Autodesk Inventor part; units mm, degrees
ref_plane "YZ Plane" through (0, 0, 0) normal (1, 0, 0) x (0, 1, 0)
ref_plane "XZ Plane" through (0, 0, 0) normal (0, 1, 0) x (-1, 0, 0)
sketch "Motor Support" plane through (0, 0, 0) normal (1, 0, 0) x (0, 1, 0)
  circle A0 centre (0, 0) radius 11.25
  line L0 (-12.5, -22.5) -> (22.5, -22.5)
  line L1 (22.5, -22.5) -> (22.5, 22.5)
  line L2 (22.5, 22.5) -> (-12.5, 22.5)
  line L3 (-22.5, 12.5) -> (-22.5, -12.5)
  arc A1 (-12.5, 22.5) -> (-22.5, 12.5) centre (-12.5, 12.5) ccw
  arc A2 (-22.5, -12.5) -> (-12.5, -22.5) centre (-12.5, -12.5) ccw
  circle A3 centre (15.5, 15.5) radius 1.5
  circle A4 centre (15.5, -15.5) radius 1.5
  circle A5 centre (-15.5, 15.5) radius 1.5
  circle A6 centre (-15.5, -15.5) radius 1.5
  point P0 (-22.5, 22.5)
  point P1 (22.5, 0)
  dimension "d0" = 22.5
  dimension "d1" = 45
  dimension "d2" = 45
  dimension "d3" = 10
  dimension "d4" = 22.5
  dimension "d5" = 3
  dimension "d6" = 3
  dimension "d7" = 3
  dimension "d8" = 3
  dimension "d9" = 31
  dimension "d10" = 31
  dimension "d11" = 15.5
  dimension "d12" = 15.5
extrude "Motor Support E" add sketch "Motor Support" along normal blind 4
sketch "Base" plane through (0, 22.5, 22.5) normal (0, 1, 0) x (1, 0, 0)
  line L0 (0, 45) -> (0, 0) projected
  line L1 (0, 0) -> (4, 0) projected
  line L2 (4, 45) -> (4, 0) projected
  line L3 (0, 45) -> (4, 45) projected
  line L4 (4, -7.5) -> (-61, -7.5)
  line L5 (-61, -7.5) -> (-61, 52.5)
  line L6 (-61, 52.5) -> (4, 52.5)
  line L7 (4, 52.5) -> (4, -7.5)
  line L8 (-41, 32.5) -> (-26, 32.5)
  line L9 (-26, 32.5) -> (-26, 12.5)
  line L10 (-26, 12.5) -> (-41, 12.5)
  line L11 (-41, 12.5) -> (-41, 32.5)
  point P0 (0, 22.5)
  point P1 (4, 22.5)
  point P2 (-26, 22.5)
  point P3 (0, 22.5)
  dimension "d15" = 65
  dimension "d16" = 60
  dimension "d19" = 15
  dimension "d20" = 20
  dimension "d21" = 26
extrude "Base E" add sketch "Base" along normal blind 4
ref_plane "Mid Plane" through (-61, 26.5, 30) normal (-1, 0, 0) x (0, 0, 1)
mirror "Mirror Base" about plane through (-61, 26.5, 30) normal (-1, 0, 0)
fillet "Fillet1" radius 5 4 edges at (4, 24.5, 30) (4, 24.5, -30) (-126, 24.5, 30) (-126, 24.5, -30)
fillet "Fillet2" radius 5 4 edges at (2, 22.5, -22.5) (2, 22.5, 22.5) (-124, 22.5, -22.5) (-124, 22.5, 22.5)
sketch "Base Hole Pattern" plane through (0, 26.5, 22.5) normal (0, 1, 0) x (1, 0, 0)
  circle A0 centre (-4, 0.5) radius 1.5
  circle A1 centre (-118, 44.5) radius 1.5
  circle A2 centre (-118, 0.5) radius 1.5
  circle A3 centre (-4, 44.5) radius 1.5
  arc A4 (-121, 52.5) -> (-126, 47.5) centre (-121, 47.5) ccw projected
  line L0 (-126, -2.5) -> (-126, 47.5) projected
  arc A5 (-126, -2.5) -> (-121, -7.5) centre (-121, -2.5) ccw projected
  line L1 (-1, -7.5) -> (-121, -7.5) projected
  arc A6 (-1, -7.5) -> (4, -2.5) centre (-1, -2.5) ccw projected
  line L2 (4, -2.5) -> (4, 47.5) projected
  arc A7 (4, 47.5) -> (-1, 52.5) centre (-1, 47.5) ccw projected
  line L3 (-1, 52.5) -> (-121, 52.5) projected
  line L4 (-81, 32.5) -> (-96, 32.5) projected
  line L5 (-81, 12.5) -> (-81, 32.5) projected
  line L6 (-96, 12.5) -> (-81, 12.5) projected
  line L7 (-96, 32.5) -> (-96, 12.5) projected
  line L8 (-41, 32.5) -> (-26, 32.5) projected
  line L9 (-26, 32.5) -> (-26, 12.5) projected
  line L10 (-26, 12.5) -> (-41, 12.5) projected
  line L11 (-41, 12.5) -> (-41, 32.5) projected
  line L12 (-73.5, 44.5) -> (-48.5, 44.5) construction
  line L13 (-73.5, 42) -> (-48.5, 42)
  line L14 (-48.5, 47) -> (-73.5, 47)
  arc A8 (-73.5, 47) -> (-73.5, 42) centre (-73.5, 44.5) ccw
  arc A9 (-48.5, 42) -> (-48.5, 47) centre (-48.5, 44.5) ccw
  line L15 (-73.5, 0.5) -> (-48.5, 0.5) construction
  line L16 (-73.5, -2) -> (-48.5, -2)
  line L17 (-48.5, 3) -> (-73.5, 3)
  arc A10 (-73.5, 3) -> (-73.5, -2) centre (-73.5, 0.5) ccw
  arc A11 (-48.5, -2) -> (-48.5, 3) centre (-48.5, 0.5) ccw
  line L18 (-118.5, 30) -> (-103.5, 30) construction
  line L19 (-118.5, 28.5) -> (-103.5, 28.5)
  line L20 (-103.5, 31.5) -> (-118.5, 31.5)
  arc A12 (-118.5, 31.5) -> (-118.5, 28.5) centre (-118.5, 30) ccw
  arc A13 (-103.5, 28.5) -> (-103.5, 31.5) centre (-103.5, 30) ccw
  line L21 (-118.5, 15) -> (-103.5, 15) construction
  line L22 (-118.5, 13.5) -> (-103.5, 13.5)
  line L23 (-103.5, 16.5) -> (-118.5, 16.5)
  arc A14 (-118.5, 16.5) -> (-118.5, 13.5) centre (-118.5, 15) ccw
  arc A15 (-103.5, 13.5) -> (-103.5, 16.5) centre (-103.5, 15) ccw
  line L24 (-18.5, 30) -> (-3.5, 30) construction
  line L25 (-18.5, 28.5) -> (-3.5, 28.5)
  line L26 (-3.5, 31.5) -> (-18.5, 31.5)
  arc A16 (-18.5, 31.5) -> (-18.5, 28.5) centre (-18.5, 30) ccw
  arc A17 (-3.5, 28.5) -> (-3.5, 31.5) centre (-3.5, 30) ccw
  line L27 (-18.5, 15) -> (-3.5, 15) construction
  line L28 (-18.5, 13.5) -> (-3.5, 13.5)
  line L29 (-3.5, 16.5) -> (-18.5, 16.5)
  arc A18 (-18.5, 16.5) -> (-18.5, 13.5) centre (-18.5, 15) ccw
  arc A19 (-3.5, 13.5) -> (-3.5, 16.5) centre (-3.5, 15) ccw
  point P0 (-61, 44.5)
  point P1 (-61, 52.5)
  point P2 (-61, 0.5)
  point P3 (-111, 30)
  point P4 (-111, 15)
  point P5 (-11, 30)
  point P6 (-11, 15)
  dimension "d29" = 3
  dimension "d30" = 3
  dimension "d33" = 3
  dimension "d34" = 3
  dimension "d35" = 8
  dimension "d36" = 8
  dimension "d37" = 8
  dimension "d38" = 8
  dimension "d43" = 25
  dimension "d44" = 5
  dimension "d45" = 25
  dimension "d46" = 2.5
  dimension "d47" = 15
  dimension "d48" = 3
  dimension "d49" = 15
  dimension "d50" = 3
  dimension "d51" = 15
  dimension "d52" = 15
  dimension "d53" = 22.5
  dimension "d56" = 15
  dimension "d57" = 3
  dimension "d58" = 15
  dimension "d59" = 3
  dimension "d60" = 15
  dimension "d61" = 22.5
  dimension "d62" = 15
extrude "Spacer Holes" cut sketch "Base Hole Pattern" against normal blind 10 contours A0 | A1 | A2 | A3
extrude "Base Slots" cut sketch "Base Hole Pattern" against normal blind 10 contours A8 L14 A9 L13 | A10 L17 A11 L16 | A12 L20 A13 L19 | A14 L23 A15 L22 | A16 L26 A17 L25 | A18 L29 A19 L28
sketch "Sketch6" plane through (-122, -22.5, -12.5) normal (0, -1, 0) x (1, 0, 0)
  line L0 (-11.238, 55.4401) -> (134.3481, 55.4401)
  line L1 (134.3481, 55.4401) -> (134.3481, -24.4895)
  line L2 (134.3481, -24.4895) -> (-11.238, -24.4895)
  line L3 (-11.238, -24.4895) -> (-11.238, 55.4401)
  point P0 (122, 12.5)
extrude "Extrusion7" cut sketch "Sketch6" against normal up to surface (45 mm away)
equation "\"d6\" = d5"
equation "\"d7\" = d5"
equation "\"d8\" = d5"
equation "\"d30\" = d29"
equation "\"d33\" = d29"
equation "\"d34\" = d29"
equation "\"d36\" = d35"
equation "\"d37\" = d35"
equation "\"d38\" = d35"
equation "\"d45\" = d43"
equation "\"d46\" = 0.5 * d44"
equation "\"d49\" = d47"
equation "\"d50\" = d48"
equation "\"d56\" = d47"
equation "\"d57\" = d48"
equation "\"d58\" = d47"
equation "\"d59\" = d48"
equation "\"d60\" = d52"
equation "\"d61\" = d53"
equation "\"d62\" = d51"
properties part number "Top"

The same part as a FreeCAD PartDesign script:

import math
import FreeCAD as App
import Part
import Sketcher


def edges_at(feature, points):
    """Names of the edges that pass closest to the given points."""
    edges = feature.Shape.Edges
    near = lambda p: min(range(len(edges)), key=lambda i: edges[i].distToShape(Part.Vertex(*p))[0])
    return sorted({f"Edge{near(p) + 1}" for p in points})

doc = App.newDocument("Part")
body = doc.addObject("PartDesign::Body", "Body")

sketch1 = body.newObject("Sketcher::SketchObject", "Sketch")
sketch1.AttachmentSupport = (doc.getObject("YZ_Plane"), [""])
sketch1.MapMode = "FlatFace"
sketch1.addGeometry([
    Part.ArcOfCircle(Part.Circle(App.Vector(-12.5, -12.5, 0), App.Vector(0, 0, 1), 10), math.radians(180), math.radians(270)),
    Part.LineSegment(App.Vector(-12.5, -22.5, 0), App.Vector(22.5, -22.5, 0)),
    Part.LineSegment(App.Vector(22.5, -22.5, 0), App.Vector(22.5, 22.5, 0)),
    Part.LineSegment(App.Vector(22.5, 22.5, 0), App.Vector(-12.5, 22.5, 0)),
    Part.ArcOfCircle(Part.Circle(App.Vector(-12.5, 12.5, 0), App.Vector(0, 0, 1), 10), math.radians(90), math.radians(180)),
    Part.LineSegment(App.Vector(-22.5, 12.5, 0), App.Vector(-22.5, -12.5, 0)),
    Part.Circle(App.Vector(-15.5, -15.5, 0), App.Vector(0, 0, 1), 1.5),
    Part.Circle(App.Vector(15.5, -15.5, 0), App.Vector(0, 0, 1), 1.5),
    Part.Circle(App.Vector(-15.5, 15.5, 0), App.Vector(0, 0, 1), 1.5),
    Part.Circle(App.Vector(0, 0, 0), App.Vector(0, 0, 1), 11.2),
    Part.Circle(App.Vector(15.5, 15.5, 0), App.Vector(0, 0, 1), 1.5),
], False)
sketch1.addConstraint([
    Sketcher.Constraint("Tangent", 0, 2, 1, 1),
    Sketcher.Constraint("Coincident", 1, 2, 2, 1),
    Sketcher.Constraint("Coincident", 2, 2, 3, 1),
    Sketcher.Constraint("Tangent", 3, 2, 4, 1),
    Sketcher.Constraint("Tangent", 4, 2, 5, 1),
    Sketcher.Constraint("Tangent", 5, 2, 0, 1),
    Sketcher.Constraint("Horizontal", 1),
    Sketcher.Constraint("Vertical", 2),
    Sketcher.Constraint("Horizontal", 3),
    Sketcher.Constraint("Vertical", 5),
    Sketcher.Constraint("Coincident", 9, 3, -1, 1),
    Sketcher.Constraint("Equal", 0, 4),
    Sketcher.Constraint("Equal", 6, 7),
    Sketcher.Constraint("Equal", 7, 8),
    Sketcher.Constraint("Equal", 8, 10),
    Sketcher.Constraint("Symmetric", 7, 3, 8, 3, -1, 1),
    Sketcher.Constraint("Symmetric", 6, 3, 10, 3, -1, 1),
    Sketcher.Constraint("Symmetric", 6, 3, 7, 3, -2),
    Sketcher.Constraint("Diameter", 6, 3.0),
    Sketcher.Constraint("Radius", 0, 10.0),
    Sketcher.Constraint("Diameter", 9, 22.5),
    Sketcher.Constraint("DistanceY", 2, 1, 2, 2, 45.0),
    Sketcher.Constraint("DistanceX", 6, 3, 0, 3, 3.0),
    Sketcher.Constraint("DistanceY", 6, 3, 0, 3, 3.0),
    Sketcher.Constraint("DistanceX", 6, 3, 7, 3, 31.0),
    Sketcher.Constraint("DistanceY", 4, 3, 8, 3, 3.0),
    Sketcher.Constraint("DistanceX", -1, 1, 1, 2, 22.5),
])
pad1 = body.newObject("PartDesign::Pad", "Pad")
pad1.Profile = sketch1
pad1.Length = 4

sketch2 = body.newObject("Sketcher::SketchObject", "Sketch001")
sketch2.AttachmentSupport = (doc.getObject("XZ_Plane"), [""])
sketch2.MapMode = "FlatFace"
sketch2.AttachmentOffset = App.Placement(App.Vector(0, 0, -22.5), App.Rotation())
sketch2.addGeometry([
    Part.LineSegment(App.Vector(4, -30, 0), App.Vector(-61, -30, 0)),
    Part.LineSegment(App.Vector(-61, -30, 0), App.Vector(-61, 30, 0)),
    Part.LineSegment(App.Vector(-61, 30, 0), App.Vector(4, 30, 0)),
    Part.LineSegment(App.Vector(4, 30, 0), App.Vector(4, -30, 0)),
    Part.LineSegment(App.Vector(-26, 10, 0), App.Vector(-41, 10, 0)),
    Part.LineSegment(App.Vector(-41, 10, 0), App.Vector(-41, -10, 0)),
    Part.LineSegment(App.Vector(-41, -10, 0), App.Vector(-26, -10, 0)),
    Part.LineSegment(App.Vector(-26, -10, 0), App.Vector(-26, 10, 0)),
], False)
sketch2.addConstraint([
    Sketcher.Constraint("Coincident", 0, 2, 1, 1),
    Sketcher.Constraint("Coincident", 1, 2, 2, 1),
    Sketcher.Constraint("Coincident", 2, 2, 3, 1),
    Sketcher.Constraint("Coincident", 3, 2, 0, 1),
    Sketcher.Constraint("Coincident", 4, 2, 5, 1),
    Sketcher.Constraint("Coincident", 5, 2, 6, 1),
    Sketcher.Constraint("Coincident", 6, 2, 7, 1),
    Sketcher.Constraint("Coincident", 7, 2, 4, 1),
    Sketcher.Constraint("Horizontal", 0),
    Sketcher.Constraint("Vertical", 1),
    Sketcher.Constraint("Horizontal", 2),
    Sketcher.Constraint("Vertical", 3),
    Sketcher.Constraint("Horizontal", 4),
    Sketcher.Constraint("Vertical", 5),
    Sketcher.Constraint("Horizontal", 6),
    Sketcher.Constraint("Vertical", 7),
    Sketcher.Constraint("DistanceX", 0, 2, 0, 1, 65.0),
    Sketcher.Constraint("DistanceX", 4, 2, 4, 1, 15.0),
    Sketcher.Constraint("DistanceY", 1, 1, 1, 2, 60.0),
    Sketcher.Constraint("DistanceY", 5, 2, 5, 1, 20.0),
    Sketcher.Constraint("DistanceX", 6, 2, -1, 1, 26.0),
    Sketcher.Constraint("DistanceX", 1, 2, 4, 2, 20.0),
    Sketcher.Constraint("DistanceY", 4, 2, 1, 2, 20.0),
    Sketcher.Constraint("DistanceY", 0, 2, -1, 1, 30.0),
])
pad2 = body.newObject("PartDesign::Pad", "Pad001")
pad2.Profile = sketch2
pad2.Length = 4
pad2.Reversed = True
doc.recompute()

datumplane = body.newObject("PartDesign::Plane", "DatumPlane")
datumplane.AttachmentSupport = (doc.getObject("YZ_Plane"), [""])
datumplane.MapMode = "FlatFace"
datumplane.AttachmentOffset = App.Placement(App.Vector(0, 0, -61), App.Rotation())
mirrored = body.newObject("PartDesign::Mirrored", "Mirrored")
mirrored.TransformMode = "Transform body"
mirrored.MirrorPlane = (datumplane, [""])
body.Tip = mirrored
doc.recompute()

fillet = body.newObject("PartDesign::Fillet", "Fillet")
fillet.Base = (mirrored, edges_at(mirrored, [
    (4, 24.5, 30),
    (4, 24.5, -30),
    (-126, 24.5, 30),
    (-126, 24.5, -30),
]))
fillet.Radius = 5
doc.recompute()

fillet2 = body.newObject("PartDesign::Fillet", "Fillet001")
fillet2.Base = (fillet, edges_at(fillet, [
    (2, 22.5, -22.5),
    (2, 22.5, 22.5),
    (-124, 22.5, -22.5),
    (-124, 22.5, 22.5),
]))
fillet2.Radius = 5

sketch3 = body.newObject("Sketcher::SketchObject", "Sketch002")
sketch3.AttachmentSupport = (doc.getObject("XZ_Plane"), [""])
sketch3.MapMode = "FlatFace"
sketch3.AttachmentOffset = App.Placement(App.Vector(0, 0, -26.5), App.Rotation())
sketch3.addGeometry([
    Part.Circle(App.Vector(-4, 22, 0), App.Vector(0, 0, 1), 1.5),
    Part.Circle(App.Vector(-118, -22, 0), App.Vector(0, 0, 1), 1.5),
    Part.Circle(App.Vector(-118, 22, 0), App.Vector(0, 0, 1), 1.5),
    Part.Circle(App.Vector(-4, -22, 0), App.Vector(0, 0, 1), 1.5),
], False)
sketch3.addConstraint([
    Sketcher.Constraint("Equal", 0, 1),
    Sketcher.Constraint("Equal", 1, 2),
    Sketcher.Constraint("Equal", 2, 3),
    Sketcher.Constraint("Symmetric", 1, 3, 2, 3, -1),
    Sketcher.Constraint("Symmetric", 0, 3, 3, 3, -1),
    Sketcher.Constraint("Horizontal", 0, 3, 2, 3),
    Sketcher.Constraint("Diameter", 0, 3.0),
    Sketcher.Constraint("DistanceX", 0, 3, -1, 1, 4.0),
    Sketcher.Constraint("DistanceY", -1, 1, 0, 3, 22.0),
    Sketcher.Constraint("DistanceX", 1, 3, -1, 1, 118.0),
])
pocket1 = body.newObject("PartDesign::Pocket", "Pocket")
pocket1.Profile = sketch3
pocket1.Length = 10
pocket1.Reversed = True

sketch4 = body.newObject("Sketcher::SketchObject", "Sketch003")
sketch4.AttachmentSupport = (doc.getObject("XZ_Plane"), [""])
sketch4.MapMode = "FlatFace"
sketch4.AttachmentOffset = App.Placement(App.Vector(0, 0, -26.5), App.Rotation())
sketch4.addGeometry([
    Part.ArcOfCircle(Part.Circle(App.Vector(-73.5, -22, 0), App.Vector(0, 0, 1), 2.5), math.radians(90), math.radians(270)),
    Part.LineSegment(App.Vector(-73.5, -19.5, 0), App.Vector(-48.5, -19.5, 0)),
    Part.ArcOfCircle(Part.Circle(App.Vector(-48.5, -22, 0), App.Vector(0, 0, 1), 2.5), math.radians(-90), math.radians(90)),
    Part.LineSegment(App.Vector(-48.5, -24.5, 0), App.Vector(-73.5, -24.5, 0)),
    Part.ArcOfCircle(Part.Circle(App.Vector(-73.5, 22, 0), App.Vector(0, 0, 1), 2.5), math.radians(90), math.radians(270)),
    Part.LineSegment(App.Vector(-73.5, 24.5, 0), App.Vector(-48.5, 24.5, 0)),
    Part.ArcOfCircle(Part.Circle(App.Vector(-48.5, 22, 0), App.Vector(0, 0, 1), 2.5), math.radians(-90), math.radians(90)),
    Part.LineSegment(App.Vector(-48.5, 19.5, 0), App.Vector(-73.5, 19.5, 0)),
    Part.ArcOfCircle(Part.Circle(App.Vector(-118.5, -7.5, 0), App.Vector(0, 0, 1), 1.5), math.radians(90), math.radians(270)),
    Part.LineSegment(App.Vector(-118.5, -6, 0), App.Vector(-103.5, -6, 0)),
    Part.ArcOfCircle(Part.Circle(App.Vector(-103.5, -7.5, 0), App.Vector(0, 0, 1), 1.5), math.radians(-90), math.radians(90)),
    Part.LineSegment(App.Vector(-103.5, -9, 0), App.Vector(-118.5, -9, 0)),
    Part.ArcOfCircle(Part.Circle(App.Vector(-118.5, 7.5, 0), App.Vector(0, 0, 1), 1.5), math.radians(90), math.radians(270)),
    Part.LineSegment(App.Vector(-118.5, 9, 0), App.Vector(-103.5, 9, 0)),
    Part.ArcOfCircle(Part.Circle(App.Vector(-103.5, 7.5, 0), App.Vector(0, 0, 1), 1.5), math.radians(-90), math.radians(90)),
    Part.LineSegment(App.Vector(-103.5, 6, 0), App.Vector(-118.5, 6, 0)),
    Part.ArcOfCircle(Part.Circle(App.Vector(-18.5, -7.5, 0), App.Vector(0, 0, 1), 1.5), math.radians(90), math.radians(270)),
    Part.LineSegment(App.Vector(-18.5, -6, 0), App.Vector(-3.5, -6, 0)),
    Part.ArcOfCircle(Part.Circle(App.Vector(-3.5, -7.5, 0), App.Vector(0, 0, 1), 1.5), math.radians(-90), math.radians(90)),
    Part.LineSegment(App.Vector(-3.5, -9, 0), App.Vector(-18.5, -9, 0)),
    Part.ArcOfCircle(Part.Circle(App.Vector(-18.5, 7.5, 0), App.Vector(0, 0, 1), 1.5), math.radians(90), math.radians(270)),
    Part.LineSegment(App.Vector(-18.5, 9, 0), App.Vector(-3.5, 9, 0)),
    Part.ArcOfCircle(Part.Circle(App.Vector(-3.5, 7.5, 0), App.Vector(0, 0, 1), 1.5), math.radians(-90), math.radians(90)),
    Part.LineSegment(App.Vector(-3.5, 6, 0), App.Vector(-18.5, 6, 0)),
], False)
sketch4.addConstraint([
    Sketcher.Constraint("Tangent", 0, 1, 1, 1),
    Sketcher.Constraint("Tangent", 1, 2, 2, 2),
    Sketcher.Constraint("Tangent", 2, 1, 3, 1),
    Sketcher.Constraint("Tangent", 3, 2, 0, 2),
    Sketcher.Constraint("Tangent", 4, 1, 5, 1),
    Sketcher.Constraint("Tangent", 5, 2, 6, 2),
    Sketcher.Constraint("Tangent", 6, 1, 7, 1),
    Sketcher.Constraint("Tangent", 7, 2, 4, 2),
    Sketcher.Constraint("Tangent", 8, 1, 9, 1),
    Sketcher.Constraint("Tangent", 9, 2, 10, 2),
    Sketcher.Constraint("Tangent", 10, 1, 11, 1),
    Sketcher.Constraint("Tangent", 11, 2, 8, 2),
    Sketcher.Constraint("Tangent", 12, 1, 13, 1),
    Sketcher.Constraint("Tangent", 13, 2, 14, 2),
    Sketcher.Constraint("Tangent", 14, 1, 15, 1),
    Sketcher.Constraint("Tangent", 15, 2, 12, 2),
    Sketcher.Constraint("Tangent", 16, 1, 17, 1),
    Sketcher.Constraint("Tangent", 17, 2, 18, 2),
    Sketcher.Constraint("Tangent", 18, 1, 19, 1),
    Sketcher.Constraint("Tangent", 19, 2, 16, 2),
    Sketcher.Constraint("Tangent", 20, 1, 21, 1),
    Sketcher.Constraint("Tangent", 21, 2, 22, 2),
    Sketcher.Constraint("Tangent", 22, 1, 23, 1),
    Sketcher.Constraint("Tangent", 23, 2, 20, 2),
    Sketcher.Constraint("Horizontal", 1),
    Sketcher.Constraint("Horizontal", 3),
    Sketcher.Constraint("Horizontal", 5),
    Sketcher.Constraint("Horizontal", 7),
    Sketcher.Constraint("Horizontal", 9),
    Sketcher.Constraint("Horizontal", 11),
    Sketcher.Constraint("Horizontal", 13),
    Sketcher.Constraint("Horizontal", 15),
    Sketcher.Constraint("Horizontal", 17),
    Sketcher.Constraint("Horizontal", 19),
    Sketcher.Constraint("Horizontal", 21),
    Sketcher.Constraint("Horizontal", 23),
    Sketcher.Constraint("Equal", 2, 4),
    Sketcher.Constraint("Equal", 10, 12),
    Sketcher.Constraint("Equal", 14, 16),
    Sketcher.Constraint("Equal", 18, 20),
    Sketcher.Constraint("Symmetric", 0, 3, 4, 3, -1),
    Sketcher.Constraint("Symmetric", 8, 3, 12, 3, -1),
    Sketcher.Constraint("Symmetric", 16, 3, 20, 3, -1),
    Sketcher.Constraint("Horizontal", 10, 3, 16, 3),
    Sketcher.Constraint("Vertical", 2, 3, 6, 3),
    Sketcher.Constraint("Vertical", 10, 3, 14, 3),
    Sketcher.Constraint("Vertical", 18, 3, 22, 3),
    Sketcher.Constraint("Equal", 15, 17),
    Sketcher.Constraint("Radius", 0, 2.5),
    Sketcher.Constraint("Radius", 8, 1.5),
    Sketcher.Constraint("DistanceX", 1, 1, 1, 2, 25.0),
    Sketcher.Constraint("DistanceX", 9, 1, 9, 2, 15.0),
    Sketcher.Constraint("DistanceY", 8, 3, 12, 3, 15.0),
    Sketcher.Constraint("DistanceY", 0, 3, -1, 1, 22.0),
    Sketcher.Constraint("DistanceX", 8, 3, 0, 3, 45.0),
    Sketcher.Constraint("DistanceX", 2, 3, 16, 3, 30.0),
    Sketcher.Constraint("DistanceX", 0, 3, -1, 1, 73.5),
])
pocket2 = body.newObject("PartDesign::Pocket", "Pocket001")
pocket2.Profile = sketch4
pocket2.Length = 10
pocket2.Reversed = True

sketch5 = body.newObject("Sketcher::SketchObject", "Sketch004")
sketch5.AttachmentSupport = (doc.getObject("XZ_Plane"), [""])
sketch5.MapMode = "FlatFace"
sketch5.AttachmentOffset = App.Placement(App.Vector(0, 0, 22.5), App.Rotation())
sketch5.addGeometry([
    Part.LineSegment(App.Vector(12, 43, 0), App.Vector(-133, 43, 0)),
    Part.LineSegment(App.Vector(-133, 43, 0), App.Vector(-133, -37, 0)),
    Part.LineSegment(App.Vector(-133, -37, 0), App.Vector(12, -37, 0)),
    Part.LineSegment(App.Vector(12, -37, 0), App.Vector(12, 43, 0)),
], False)
sketch5.addConstraint([
    Sketcher.Constraint("Coincident", 0, 2, 1, 1),
    Sketcher.Constraint("Coincident", 1, 2, 2, 1),
    Sketcher.Constraint("Coincident", 2, 2, 3, 1),
    Sketcher.Constraint("Coincident", 3, 2, 0, 1),
    Sketcher.Constraint("Horizontal", 0),
    Sketcher.Constraint("Vertical", 1),
    Sketcher.Constraint("Horizontal", 2),
    Sketcher.Constraint("Vertical", 3),
    Sketcher.Constraint("DistanceX", 0, 2, 0, 1, 145.586),
    Sketcher.Constraint("DistanceY", -1, 1, 0, 2, 42.94),
    Sketcher.Constraint("DistanceY", 1, 2, 1, 1, 79.9296),
    Sketcher.Constraint("DistanceX", 0, 2, -1, 1, 133.238),
])
pocket3 = body.newObject("PartDesign::Pocket", "Pocket002")
pocket3.Profile = sketch5
pocket3.Length = 45

doc.recompute()
